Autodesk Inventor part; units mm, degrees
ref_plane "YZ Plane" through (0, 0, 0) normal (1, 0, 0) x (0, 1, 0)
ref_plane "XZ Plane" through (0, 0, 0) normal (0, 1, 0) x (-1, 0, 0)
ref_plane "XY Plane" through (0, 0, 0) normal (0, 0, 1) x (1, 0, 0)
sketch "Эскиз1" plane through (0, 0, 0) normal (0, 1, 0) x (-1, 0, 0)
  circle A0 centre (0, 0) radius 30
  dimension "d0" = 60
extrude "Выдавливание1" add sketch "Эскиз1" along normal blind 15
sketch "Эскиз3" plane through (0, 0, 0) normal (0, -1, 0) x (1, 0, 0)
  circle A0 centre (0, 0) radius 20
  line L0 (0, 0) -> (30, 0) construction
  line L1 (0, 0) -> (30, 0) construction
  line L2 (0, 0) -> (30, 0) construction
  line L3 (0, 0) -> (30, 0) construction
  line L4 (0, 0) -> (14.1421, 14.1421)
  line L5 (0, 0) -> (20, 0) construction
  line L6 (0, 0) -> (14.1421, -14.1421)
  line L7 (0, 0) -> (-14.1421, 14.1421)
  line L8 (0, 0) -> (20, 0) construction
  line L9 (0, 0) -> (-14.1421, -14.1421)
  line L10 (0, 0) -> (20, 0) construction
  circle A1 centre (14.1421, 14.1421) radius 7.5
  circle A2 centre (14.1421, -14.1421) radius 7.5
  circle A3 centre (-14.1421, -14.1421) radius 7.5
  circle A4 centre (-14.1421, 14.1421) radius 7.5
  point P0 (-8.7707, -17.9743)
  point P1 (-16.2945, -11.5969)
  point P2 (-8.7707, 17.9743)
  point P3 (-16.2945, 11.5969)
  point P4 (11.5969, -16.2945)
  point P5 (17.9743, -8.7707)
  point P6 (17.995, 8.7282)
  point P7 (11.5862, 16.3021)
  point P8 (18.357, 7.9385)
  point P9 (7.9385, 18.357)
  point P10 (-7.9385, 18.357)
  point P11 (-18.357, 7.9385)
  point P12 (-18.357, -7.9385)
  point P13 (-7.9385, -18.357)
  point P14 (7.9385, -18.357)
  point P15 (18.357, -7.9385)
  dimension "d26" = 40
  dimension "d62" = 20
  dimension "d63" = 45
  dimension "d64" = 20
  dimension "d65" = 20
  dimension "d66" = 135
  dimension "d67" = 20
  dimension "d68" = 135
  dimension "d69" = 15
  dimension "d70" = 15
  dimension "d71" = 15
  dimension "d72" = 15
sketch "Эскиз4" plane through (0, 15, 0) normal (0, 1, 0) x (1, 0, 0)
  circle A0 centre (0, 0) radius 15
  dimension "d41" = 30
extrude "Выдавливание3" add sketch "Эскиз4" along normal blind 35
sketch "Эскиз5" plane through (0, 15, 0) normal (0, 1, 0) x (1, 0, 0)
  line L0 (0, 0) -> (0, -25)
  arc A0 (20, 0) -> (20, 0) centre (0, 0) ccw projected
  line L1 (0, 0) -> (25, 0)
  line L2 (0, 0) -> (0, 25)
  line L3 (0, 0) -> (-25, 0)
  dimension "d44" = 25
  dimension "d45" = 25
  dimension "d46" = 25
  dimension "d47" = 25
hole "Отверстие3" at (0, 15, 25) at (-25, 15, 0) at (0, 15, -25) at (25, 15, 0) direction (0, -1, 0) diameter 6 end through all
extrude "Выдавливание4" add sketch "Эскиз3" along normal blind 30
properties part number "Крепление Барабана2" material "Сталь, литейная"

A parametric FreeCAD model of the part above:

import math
import FreeCAD as App
import Part
import Sketcher
Q = App.Units.Quantity

doc = App.newDocument("Part")
body = doc.addObject("PartDesign::Body", "Body")

# Sketch on XZ plane
sketch1 = body.newObject("Sketcher::SketchObject", "Sketch")
sketch1.AttachmentSupport = (doc.getObject("XZ_Plane"), [""])
sketch1.MapMode = "FlatFace"
sketch1.addGeometry(Part.Circle(App.Vector(0, 0, 0), App.Vector(0, 0, 1), 30), False)
sketch1.addConstraint([
    Sketcher.Constraint("Coincident", 0, 3, -1, 1),
    Sketcher.Constraint("Diameter", 0, Q("60 mm")),
])
pad1 = body.newObject("PartDesign::Pad", "Pad")
pad1.Profile = sketch1
pad1.Length = 15
pad1.Reversed = True

# Sketch on XZ plane
sketch2 = body.newObject("Sketcher::SketchObject", "Sketch001")
sketch2.AttachmentSupport = (doc.getObject("XZ_Plane"), [""])
sketch2.MapMode = "FlatFace"
sketch2.AttachmentOffset = App.Placement(App.Vector(0, 0, -15), App.Rotation())
sketch2.addGeometry(Part.Circle(App.Vector(0, 0, 0), App.Vector(0, 0, 1), 15), False)
sketch2.addConstraint([
    Sketcher.Constraint("Coincident", 0, 3, -1, 1),
    Sketcher.Constraint("Diameter", 0, Q("30 mm")),
])
pad2 = body.newObject("PartDesign::Pad", "Pad001")
pad2.Profile = sketch2
pad2.Length = 35
pad2.Reversed = True

# Sketch on XZ plane
sketch3 = body.newObject("Sketcher::SketchObject", "Sketch002")
sketch3.AttachmentSupport = (doc.getObject("XZ_Plane"), [""])
sketch3.MapMode = "FlatFace"
sketch3.AttachmentOffset = App.Placement(App.Vector(0, 0, -15), App.Rotation())
sketch3.addGeometry([
    Part.Circle(App.Vector(0, 25, 0), App.Vector(0, 0, 1), 3),
    Part.Circle(App.Vector(-25, 0, 0), App.Vector(0, 0, 1), 3),
    Part.Circle(App.Vector(0, -25, 0), App.Vector(0, 0, 1), 3),
    Part.Circle(App.Vector(25, 0, 0), App.Vector(0, 0, 1), 3),
], False)
sketch3.addConstraint([
    Sketcher.Constraint("Equal", 0, 1),
    Sketcher.Constraint("Equal", 1, 2),
    Sketcher.Constraint("Equal", 2, 3),
    Sketcher.Constraint("Symmetric", 0, 3, 2, 3, -1, 1),
    Sketcher.Constraint("Symmetric", 1, 3, 3, 3, -1, 1),
    Sketcher.Constraint("PointOnObject", 0, 3, -2),
    Sketcher.Constraint("PointOnObject", 1, 3, -1),
    Sketcher.Constraint("Diameter", 0, Q("6 mm")),
    Sketcher.Constraint("DistanceY", -1, 1, 0, 3, Q("25 mm")),
    Sketcher.Constraint("DistanceX", 1, 3, -1, 1, Q("25 mm")),
])
doc.recompute()
hole = body.newObject("PartDesign::Hole", "Hole")
hole.Profile = sketch3
hole.ThreadType = "None"
hole.Diameter = 6
hole.DepthType = "ThroughAll"
hole.Reversed = True

# Sketch on XZ plane
sketch4 = body.newObject("Sketcher::SketchObject", "Sketch003")
sketch4.AttachmentSupport = (doc.getObject("XZ_Plane"), [""])
sketch4.MapMode = "FlatFace"
sketch4.addGeometry([
    Part.ArcOfCircle(Part.Circle(App.Vector(0, 0, 0), App.Vector(0, 0, 1), 20), math.radians(-23.386127), math.radians(23.386127)),  # 0
    Part.ArcOfCircle(Part.Circle(App.Vector(14.1421, 14.1421, 0), App.Vector(0, 0, 1), 7.5), math.radians(-55.806559), math.radians(145.806559)),  # 1
    Part.ArcOfCircle(Part.Circle(App.Vector(0, 0, 0), App.Vector(0, 0, 1), 20), math.radians(66.613873), math.radians(113.386127)),  # 2
    Part.ArcOfCircle(Part.Circle(App.Vector(-14.1421, 14.1421, 0), App.Vector(0, 0, 1), 7.5), math.radians(34.193441), math.radians(235.806559)),  # 3
    Part.ArcOfCircle(Part.Circle(App.Vector(0, 0, 0), App.Vector(0, 0, 1), 20), math.radians(156.613873), math.radians(203.386127)),  # 4
    Part.ArcOfCircle(Part.Circle(App.Vector(-14.1421, -14.1421, 0), App.Vector(0, 0, 1), 7.5), math.radians(124.193441), math.radians(325.806559)),  # 5
    Part.ArcOfCircle(Part.Circle(App.Vector(0, 0, 0), App.Vector(0, 0, 1), 20), math.radians(-113.386127), math.radians(-66.613873)),  # 6
    Part.ArcOfCircle(Part.Circle(App.Vector(14.1421, -14.1421, 0), App.Vector(0, 0, 1), 7.5), math.radians(-145.806559), math.radians(55.806559)),  # 7
], False)
sketch4.addConstraint([
    Sketcher.Constraint("Coincident", 0, 2, 1, 1),
    Sketcher.Constraint("Coincident", 1, 2, 2, 1),
    Sketcher.Constraint("Coincident", 2, 2, 3, 1),
    Sketcher.Constraint("Coincident", 3, 2, 4, 1),
    Sketcher.Constraint("Coincident", 4, 2, 5, 1),
    Sketcher.Constraint("Coincident", 5, 2, 6, 1),
    Sketcher.Constraint("Coincident", 6, 2, 7, 1),
    Sketcher.Constraint("Coincident", 7, 2, 0, 1),
    Sketcher.Constraint("Coincident", 0, 3, -1, 1),
    Sketcher.Constraint("Coincident", 2, 3, -1, 1),
    Sketcher.Constraint("Coincident", 4, 3, -1, 1),
    Sketcher.Constraint("Coincident", 6, 3, -1, 1),
    Sketcher.Constraint("Equal", 0, 2),
    Sketcher.Constraint("Equal", 1, 3),
    Sketcher.Constraint("Equal", 2, 4),
    Sketcher.Constraint("Equal", 3, 5),
    Sketcher.Constraint("Equal", 4, 6),
    Sketcher.Constraint("Equal", 5, 7),
    Sketcher.Constraint("Symmetric", 1, 3, 5, 3, -1, 1),
    Sketcher.Constraint("Symmetric", 3, 3, 7, 3, -1, 1),
    Sketcher.Constraint("Symmetric", 1, 3, 3, 3, -2),
    Sketcher.Constraint("Radius", 0, Q("20 mm")),
    Sketcher.Constraint("Radius", 1, Q("7.5 mm")),
    Sketcher.Constraint("DistanceX", -1, 1, 1, 3, Q("14.142 mm")),
    Sketcher.Constraint("DistanceY", -1, 1, 1, 3, Q("14.142 mm")),
])
pad3 = body.newObject("PartDesign::Pad", "Pad002")
pad3.Profile = sketch4
pad3.Length = 30

doc.recompute()
